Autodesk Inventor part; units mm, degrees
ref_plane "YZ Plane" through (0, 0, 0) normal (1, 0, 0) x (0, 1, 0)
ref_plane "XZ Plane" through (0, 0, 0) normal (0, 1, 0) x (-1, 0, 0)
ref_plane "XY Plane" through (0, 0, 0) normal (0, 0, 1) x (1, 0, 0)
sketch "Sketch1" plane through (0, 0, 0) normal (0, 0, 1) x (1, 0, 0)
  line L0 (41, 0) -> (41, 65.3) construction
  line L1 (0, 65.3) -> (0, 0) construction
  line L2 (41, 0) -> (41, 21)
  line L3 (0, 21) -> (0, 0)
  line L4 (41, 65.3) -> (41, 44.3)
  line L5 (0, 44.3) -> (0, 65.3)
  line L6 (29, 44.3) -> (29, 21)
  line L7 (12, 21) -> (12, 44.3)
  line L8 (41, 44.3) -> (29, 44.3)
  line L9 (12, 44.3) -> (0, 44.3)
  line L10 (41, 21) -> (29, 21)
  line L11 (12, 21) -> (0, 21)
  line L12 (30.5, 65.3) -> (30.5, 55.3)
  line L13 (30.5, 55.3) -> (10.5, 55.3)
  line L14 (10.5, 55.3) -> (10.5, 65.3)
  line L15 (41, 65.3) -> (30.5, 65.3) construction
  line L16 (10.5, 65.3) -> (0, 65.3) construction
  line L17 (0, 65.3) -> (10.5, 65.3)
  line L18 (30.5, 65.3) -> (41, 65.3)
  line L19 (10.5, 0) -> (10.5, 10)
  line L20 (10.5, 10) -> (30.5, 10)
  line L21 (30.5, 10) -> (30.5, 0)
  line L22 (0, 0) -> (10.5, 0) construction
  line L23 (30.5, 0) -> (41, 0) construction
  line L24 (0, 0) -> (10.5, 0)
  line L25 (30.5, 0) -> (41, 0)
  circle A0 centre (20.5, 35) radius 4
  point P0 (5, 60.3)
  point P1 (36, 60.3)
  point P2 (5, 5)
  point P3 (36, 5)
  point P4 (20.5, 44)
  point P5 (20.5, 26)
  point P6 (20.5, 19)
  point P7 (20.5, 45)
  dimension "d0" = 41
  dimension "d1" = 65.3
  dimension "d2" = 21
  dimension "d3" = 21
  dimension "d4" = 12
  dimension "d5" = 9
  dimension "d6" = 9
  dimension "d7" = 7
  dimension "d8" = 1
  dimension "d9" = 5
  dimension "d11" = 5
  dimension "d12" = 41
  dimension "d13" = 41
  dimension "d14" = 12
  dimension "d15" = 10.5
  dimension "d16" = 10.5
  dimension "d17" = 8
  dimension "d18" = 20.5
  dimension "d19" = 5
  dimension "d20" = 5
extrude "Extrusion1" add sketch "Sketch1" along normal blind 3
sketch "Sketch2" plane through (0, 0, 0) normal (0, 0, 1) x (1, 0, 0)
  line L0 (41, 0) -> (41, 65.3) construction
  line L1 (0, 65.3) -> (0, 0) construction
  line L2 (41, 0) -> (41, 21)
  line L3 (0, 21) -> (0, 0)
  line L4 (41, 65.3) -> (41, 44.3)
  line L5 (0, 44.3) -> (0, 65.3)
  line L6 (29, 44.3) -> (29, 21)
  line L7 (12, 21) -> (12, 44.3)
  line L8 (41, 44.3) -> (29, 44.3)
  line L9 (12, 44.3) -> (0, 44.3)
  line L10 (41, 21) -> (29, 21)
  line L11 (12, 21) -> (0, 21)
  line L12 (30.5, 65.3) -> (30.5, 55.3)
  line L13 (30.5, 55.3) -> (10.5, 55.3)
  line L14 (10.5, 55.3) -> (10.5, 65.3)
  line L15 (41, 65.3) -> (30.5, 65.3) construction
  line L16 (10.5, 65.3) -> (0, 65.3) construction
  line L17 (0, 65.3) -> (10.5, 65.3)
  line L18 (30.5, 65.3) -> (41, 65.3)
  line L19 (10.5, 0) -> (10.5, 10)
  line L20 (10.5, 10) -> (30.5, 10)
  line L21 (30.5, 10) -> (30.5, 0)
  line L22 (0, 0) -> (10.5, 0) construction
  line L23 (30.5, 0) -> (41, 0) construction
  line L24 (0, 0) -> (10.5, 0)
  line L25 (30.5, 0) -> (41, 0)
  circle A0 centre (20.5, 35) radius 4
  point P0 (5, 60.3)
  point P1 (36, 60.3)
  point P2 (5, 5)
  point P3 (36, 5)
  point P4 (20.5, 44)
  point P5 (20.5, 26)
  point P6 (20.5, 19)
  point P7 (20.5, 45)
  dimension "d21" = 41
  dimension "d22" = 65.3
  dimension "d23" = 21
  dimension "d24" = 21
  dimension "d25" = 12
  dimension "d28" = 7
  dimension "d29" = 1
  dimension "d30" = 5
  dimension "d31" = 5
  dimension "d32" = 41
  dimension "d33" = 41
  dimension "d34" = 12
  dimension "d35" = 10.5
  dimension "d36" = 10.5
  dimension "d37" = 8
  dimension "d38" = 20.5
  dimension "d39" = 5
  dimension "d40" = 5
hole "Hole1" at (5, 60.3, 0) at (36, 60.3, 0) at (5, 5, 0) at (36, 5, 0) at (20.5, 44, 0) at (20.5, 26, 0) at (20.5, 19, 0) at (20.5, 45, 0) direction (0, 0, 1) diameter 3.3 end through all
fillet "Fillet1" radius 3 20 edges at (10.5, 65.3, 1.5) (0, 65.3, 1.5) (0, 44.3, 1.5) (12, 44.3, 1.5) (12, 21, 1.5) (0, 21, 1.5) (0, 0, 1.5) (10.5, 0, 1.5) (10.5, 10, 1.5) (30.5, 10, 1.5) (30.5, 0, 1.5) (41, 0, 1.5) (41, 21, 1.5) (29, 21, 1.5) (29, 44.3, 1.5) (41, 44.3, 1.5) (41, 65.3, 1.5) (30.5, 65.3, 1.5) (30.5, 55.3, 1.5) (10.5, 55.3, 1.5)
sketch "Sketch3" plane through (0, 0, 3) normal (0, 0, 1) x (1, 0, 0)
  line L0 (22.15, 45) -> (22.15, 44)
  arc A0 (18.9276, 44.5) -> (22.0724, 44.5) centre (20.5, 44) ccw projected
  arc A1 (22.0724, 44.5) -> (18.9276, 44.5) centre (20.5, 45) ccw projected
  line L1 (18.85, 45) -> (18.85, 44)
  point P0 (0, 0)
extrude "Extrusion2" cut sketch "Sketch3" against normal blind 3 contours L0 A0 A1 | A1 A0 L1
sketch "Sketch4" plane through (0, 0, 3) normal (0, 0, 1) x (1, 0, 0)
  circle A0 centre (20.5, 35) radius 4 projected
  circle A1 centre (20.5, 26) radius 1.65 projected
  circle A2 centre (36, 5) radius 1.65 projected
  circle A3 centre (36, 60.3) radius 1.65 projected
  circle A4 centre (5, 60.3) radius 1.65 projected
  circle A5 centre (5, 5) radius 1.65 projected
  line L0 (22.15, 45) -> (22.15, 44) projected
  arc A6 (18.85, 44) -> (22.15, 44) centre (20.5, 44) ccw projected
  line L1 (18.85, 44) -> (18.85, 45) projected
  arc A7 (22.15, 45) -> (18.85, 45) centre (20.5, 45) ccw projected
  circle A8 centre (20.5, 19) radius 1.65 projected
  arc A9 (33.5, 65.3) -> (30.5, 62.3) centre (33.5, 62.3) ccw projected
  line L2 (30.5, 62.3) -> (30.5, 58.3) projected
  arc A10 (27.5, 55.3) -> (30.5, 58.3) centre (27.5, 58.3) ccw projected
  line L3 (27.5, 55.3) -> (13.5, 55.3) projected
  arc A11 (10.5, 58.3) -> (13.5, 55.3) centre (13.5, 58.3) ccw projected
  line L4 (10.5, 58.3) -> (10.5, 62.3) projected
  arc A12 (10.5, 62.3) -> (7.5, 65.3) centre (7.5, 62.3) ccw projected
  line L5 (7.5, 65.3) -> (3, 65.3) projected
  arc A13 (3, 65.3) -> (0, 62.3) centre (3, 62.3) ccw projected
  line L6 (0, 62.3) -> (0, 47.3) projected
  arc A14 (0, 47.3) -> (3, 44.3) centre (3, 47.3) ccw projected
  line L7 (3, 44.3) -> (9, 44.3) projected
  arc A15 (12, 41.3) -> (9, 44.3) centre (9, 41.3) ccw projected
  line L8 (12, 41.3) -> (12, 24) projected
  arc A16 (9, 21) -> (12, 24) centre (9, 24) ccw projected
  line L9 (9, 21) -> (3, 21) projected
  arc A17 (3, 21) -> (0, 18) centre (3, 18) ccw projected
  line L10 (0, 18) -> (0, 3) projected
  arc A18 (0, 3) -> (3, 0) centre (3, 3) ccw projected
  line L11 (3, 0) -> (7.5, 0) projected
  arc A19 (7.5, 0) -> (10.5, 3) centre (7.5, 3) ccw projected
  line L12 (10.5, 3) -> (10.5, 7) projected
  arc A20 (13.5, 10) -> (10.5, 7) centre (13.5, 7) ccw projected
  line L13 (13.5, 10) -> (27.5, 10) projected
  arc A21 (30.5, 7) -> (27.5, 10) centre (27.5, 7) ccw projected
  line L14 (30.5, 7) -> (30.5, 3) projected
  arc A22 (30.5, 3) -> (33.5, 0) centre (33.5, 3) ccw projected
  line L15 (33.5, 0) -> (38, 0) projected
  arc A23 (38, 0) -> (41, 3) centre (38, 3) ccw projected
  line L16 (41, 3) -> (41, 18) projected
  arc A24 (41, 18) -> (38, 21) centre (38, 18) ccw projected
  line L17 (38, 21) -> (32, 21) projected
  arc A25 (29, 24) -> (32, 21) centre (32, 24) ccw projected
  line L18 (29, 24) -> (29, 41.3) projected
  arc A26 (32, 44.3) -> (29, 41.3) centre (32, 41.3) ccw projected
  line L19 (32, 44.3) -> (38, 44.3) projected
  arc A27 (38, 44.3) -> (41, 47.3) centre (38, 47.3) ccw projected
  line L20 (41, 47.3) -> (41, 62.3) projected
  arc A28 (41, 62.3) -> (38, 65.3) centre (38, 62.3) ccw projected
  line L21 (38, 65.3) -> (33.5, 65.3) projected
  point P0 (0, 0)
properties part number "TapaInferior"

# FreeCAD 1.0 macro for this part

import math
import FreeCAD as App
import Part
import Sketcher
from FreeCAD import Vector


def edges_at(feature, points):
    """Names of the edges that pass closest to the given points."""
    edges = feature.Shape.Edges
    near = lambda p: min(range(len(edges)), key=lambda i: edges[i].distToShape(Part.Vertex(*p))[0])
    return sorted({f"Edge{near(p) + 1}" for p in points})


def add_polygon(sketch, points):
    """Adds a closed chain of lines whose ends are joined by coincident constraints."""
    first, n = sketch.GeometryCount, len(points)
    for a, b in zip(points, points[1:] + points[:1]):
        sketch.addGeometry(Part.LineSegment(App.Vector(*a, 0), App.Vector(*b, 0)), False)
    for i in range(n):
        sketch.addConstraint(Sketcher.Constraint("Coincident", first + i, 2, first + (i + 1) % n, 1))

doc = App.newDocument("Part")
params = doc.addObject("Spreadsheet::Sheet", "Params")
for row, (alias, value) in enumerate([
    ("sketch1_diameter", "8 mm"),
    ("sketch1_width", "12 mm"),
    ("sketch1_height", "21 mm"),
    ("sketch1_width2", "10.5 mm"),
    ("sketch1_height2", "10 mm"),
    ("pad1_length", "3 mm"),
    ("sketch2_diameter", "3.3 mm"),
    ("hole_diameter", "3.3 mm"),
    ("fillet_radius", "3 mm"),
    ("sketch3_height", "1 mm"),
    ("sketch3_radius", "1.65 mm"),
    ("pocket1_length", "3 mm"),
], start=1):
    params.set(f"A{row}", alias)
    params.set(f"B{row}", "=" + value)
    params.setAlias(f"B{row}", alias)

body = doc.addObject("PartDesign::Body", "Body")

sketch1 = body.newObject("Sketcher::SketchObject", "Sketch")
sketch1.AttachmentSupport = (doc.getObject("XY_Plane"), [""])
sketch1.MapMode = "FlatFace"
add_polygon(sketch1, [(30.5, 0), (41, 0), (41, 21), (29, 21), (29, 44.3), (41, 44.3), (41, 65.3), (30.5, 65.3), (30.5, 55.3), (10.5, 55.3), (10.5, 65.3), (0, 65.3), (0, 44.3), (12, 44.3), (12, 21), (0, 21), (0, 0), (10.5, 0), (10.5, 10), (30.5, 10)])
sketch1.addGeometry(Part.Circle(Vector(20.5, 35, 0), Vector(0, 0, 1), 4), False)
sketch1.addConstraint(Sketcher.Constraint("Horizontal", 0))
sketch1.addConstraint(Sketcher.Constraint("Vertical", 1))
sketch1.addConstraint(Sketcher.Constraint("Horizontal", 2))
sketch1.addConstraint(Sketcher.Constraint("Vertical", 3))
sketch1.addConstraint(Sketcher.Constraint("Horizontal", 4))
sketch1.addConstraint(Sketcher.Constraint("Vertical", 5))
sketch1.addConstraint(Sketcher.Constraint("Horizontal", 6))
sketch1.addConstraint(Sketcher.Constraint("Vertical", 7))
sketch1.addConstraint(Sketcher.Constraint("Horizontal", 8))
sketch1.addConstraint(Sketcher.Constraint("Vertical", 9))
sketch1.addConstraint(Sketcher.Constraint("Horizontal", 10))
sketch1.addConstraint(Sketcher.Constraint("Vertical", 11))
sketch1.addConstraint(Sketcher.Constraint("Horizontal", 12))
sketch1.addConstraint(Sketcher.Constraint("Vertical", 13))
sketch1.addConstraint(Sketcher.Constraint("Horizontal", 14))
sketch1.addConstraint(Sketcher.Constraint("Vertical", 15))
sketch1.addConstraint(Sketcher.Constraint("Horizontal", 16))
sketch1.addConstraint(Sketcher.Constraint("Vertical", 17))
sketch1.addConstraint(Sketcher.Constraint("Horizontal", 18))
sketch1.addConstraint(Sketcher.Constraint("Vertical", 19))
sketch1.addConstraint(Sketcher.Constraint("Coincident", 15, 2, -1, 1))
sketch1.addConstraint(Sketcher.Constraint("PointOnObject", 0, 2, -1))
sketch1.addConstraint(Sketcher.Constraint("PointOnObject", 10, 2, -2))
sketch1.addConstraint(Sketcher.Constraint("Horizontal", 6, 2, 9, 2))
sketch1.addConstraint(Sketcher.Constraint("Horizontal", 4, 2, 11, 2))
sketch1.addConstraint(Sketcher.Constraint("Horizontal", 2, 2, 13, 2))
sketch1.addConstraint(Sketcher.Constraint("Vertical", 1, 2, 4, 2))
sketch1.addConstraint(Sketcher.Constraint("Vertical", 9, 2, 16, 2))
sketch1.addConstraint(Sketcher.Constraint("Vertical", 7, 2, 18, 2))
sketch1.addConstraint(Sketcher.Constraint("Equal", 6, 10))
sketch1.addConstraint(Sketcher.Constraint("Equal", 4, 12))
sketch1.addConstraint(Sketcher.Constraint("Equal", 1, 5))
sketch1.addConstraint(Sketcher.Constraint("Equal", 9, 17))
sketch1.addConstraint(Sketcher.Constraint("Diameter", 20, 8.0))
sketch1.addConstraint(Sketcher.Constraint("DistanceX", 2, 2, 2, 1, 12.0))
sketch1.addConstraint(Sketcher.Constraint("DistanceY", 1, 1, 1, 2, 21.0))
sketch1.addConstraint(Sketcher.Constraint("DistanceX", 0, 1, 0, 2, 10.5))
sketch1.addConstraint(Sketcher.Constraint("DistanceX", -1, 1, 0, 2, 41.0))
sketch1.addConstraint(Sketcher.Constraint("DistanceX", -1, 1, 20, 3, 20.5))
sketch1.addConstraint(Sketcher.Constraint("DistanceY", -1, 1, 5, 2, 65.3))
sketch1.addConstraint(Sketcher.Constraint("DistanceY", 7, 2, 7, 1, 10.0))
sketch1.addConstraint(Sketcher.Constraint("DistanceY", -1, 1, 20, 3, 35.0))
sketch1.setExpression("Constraints[53]", "Params.sketch1_diameter")
sketch1.setExpression("Constraints[54]", "Params.sketch1_width")
sketch1.setExpression("Constraints[55]", "Params.sketch1_height")
sketch1.setExpression("Constraints[56]", "Params.sketch1_width2")
sketch1.setExpression("Constraints[60]", "Params.sketch1_height2")
pad1 = body.newObject("PartDesign::Pad", "Pad")
pad1.Profile = sketch1
pad1.setExpression("Length", "Params.pad1_length")

sketch2 = body.newObject("Sketcher::SketchObject", "Sketch001")
sketch2.AttachmentSupport = (doc.getObject("XY_Plane"), [""])
sketch2.MapMode = "FlatFace"
sketch2.addGeometry(Part.Circle(Vector(5, 60.3, 0), Vector(0, 0, 1), 1.6), False)
sketch2.addGeometry(Part.Circle(Vector(36, 60.3, 0), Vector(0, 0, 1), 1.6), False)
sketch2.addGeometry(Part.Circle(Vector(5, 5, 0), Vector(0, 0, 1), 1.6), False)
sketch2.addGeometry(Part.Circle(Vector(36, 5, 0), Vector(0, 0, 1), 1.6), False)
sketch2.addGeometry(Part.Circle(Vector(20.5, 44, 0), Vector(0, 0, 1), 1.6), False)
sketch2.addGeometry(Part.Circle(Vector(20.5, 26, 0), Vector(0, 0, 1), 1.6), False)
sketch2.addGeometry(Part.Circle(Vector(20.5, 19, 0), Vector(0, 0, 1), 1.6), False)
sketch2.addGeometry(Part.Circle(Vector(20.5, 45, 0), Vector(0, 0, 1), 1.6), False)
sketch2.addConstraint(Sketcher.Constraint("Equal", 0, 1))
sketch2.addConstraint(Sketcher.Constraint("Equal", 1, 2))
sketch2.addConstraint(Sketcher.Constraint("Equal", 2, 3))
sketch2.addConstraint(Sketcher.Constraint("Equal", 3, 4))
sketch2.addConstraint(Sketcher.Constraint("Equal", 4, 5))
sketch2.addConstraint(Sketcher.Constraint("Equal", 5, 6))
sketch2.addConstraint(Sketcher.Constraint("Equal", 6, 7))
sketch2.addConstraint(Sketcher.Constraint("Horizontal", 0, 3, 1, 3))
sketch2.addConstraint(Sketcher.Constraint("Horizontal", 2, 3, 3, 3))
sketch2.addConstraint(Sketcher.Constraint("Vertical", 0, 3, 2, 3))
sketch2.addConstraint(Sketcher.Constraint("Vertical", 1, 3, 3, 3))
sketch2.addConstraint(Sketcher.Constraint("Vertical", 4, 3, 5, 3))
sketch2.addConstraint(Sketcher.Constraint("Vertical", 5, 3, 6, 3))
sketch2.addConstraint(Sketcher.Constraint("Vertical", 6, 3, 7, 3))
sketch2.addConstraint(Sketcher.Constraint("Diameter", 0, 3.3))
sketch2.addConstraint(Sketcher.Constraint("DistanceX", -1, 1, 0, 3, 5.0))
sketch2.addConstraint(Sketcher.Constraint("DistanceX", -1, 1, 1, 3, 36.0))
sketch2.addConstraint(Sketcher.Constraint("DistanceY", -1, 1, 2, 3, 5.0))
sketch2.addConstraint(Sketcher.Constraint("DistanceY", -1, 1, 4, 3, 44.0))
sketch2.addConstraint(Sketcher.Constraint("DistanceY", -1, 1, 5, 3, 26.0))
sketch2.addConstraint(Sketcher.Constraint("DistanceY", -1, 1, 6, 3, 19.0))
sketch2.addConstraint(Sketcher.Constraint("DistanceY", -1, 1, 7, 3, 45.0))
sketch2.addConstraint(Sketcher.Constraint("DistanceY", -1, 1, 0, 3, 60.3))
sketch2.addConstraint(Sketcher.Constraint("DistanceX", -1, 1, 4, 3, 20.5))
sketch2.setExpression("Constraints[14]", "Params.sketch2_diameter")
doc.recompute()
hole = body.newObject("PartDesign::Hole", "Hole")
hole.Profile = sketch2
hole.ThreadType = "None"
hole.setExpression("Diameter", "Params.hole_diameter")
hole.DepthType = "ThroughAll"
hole.Reversed = True
doc.recompute()

fillet = body.newObject("PartDesign::Fillet", "Fillet")
fillet.Base = (hole, edges_at(hole, [
    (10.5, 65.3, 1.5),
    (0, 65.3, 1.5),
    (0, 44.3, 1.5),
    (12, 44.3, 1.5),
    (12, 21, 1.5),
    (0, 21, 1.5),
    (0, 0, 1.5),
    (10.5, 0, 1.5),
    (10.5, 10, 1.5),
    (30.5, 10, 1.5),
    (30.5, 0, 1.5),
    (41, 0, 1.5),
    (41, 21, 1.5),
    (29, 21, 1.5),
    (29, 44.3, 1.5),
    (41, 44.3, 1.5),
    (41, 65.3, 1.5),
    (30.5, 65.3, 1.5),
    (30.5, 55.3, 1.5),
    (10.5, 55.3, 1.5),
]))
fillet.setExpression("Radius", "Params.fillet_radius")

sketch3 = body.newObject("Sketcher::SketchObject", "Sketch002")
sketch3.AttachmentSupport = (doc.getObject("XY_Plane"), [""])
sketch3.MapMode = "FlatFace"
sketch3.AttachmentOffset = App.Placement(Vector(0, 0, 3), App.Rotation())
sketch3.addGeometry(Part.LineSegment(Vector(22.1, 44, 0), Vector(22.1, 45, 0)), False)
sketch3.addGeometry(Part.ArcOfCircle(Part.Circle(Vector(20.5, 45, 0), Vector(0, 0, 1), 1.6), math.radians(-17.64), math.radians(0)), False)
sketch3.addGeometry(Part.ArcOfCircle(Part.Circle(Vector(20.5, 44, 0), Vector(0, 0, 1), 1.6), math.radians(0), math.radians(17.64)), False)
sketch3.addGeometry(Part.ArcOfCircle(Part.Circle(Vector(20.5, 45, 0), Vector(0, 0, 1), 1.6), math.radians(180), math.radians(197.64)), False)
sketch3.addGeometry(Part.LineSegment(Vector(18.9, 45, 0), Vector(18.9, 44, 0)), False)
sketch3.addGeometry(Part.ArcOfCircle(Part.Circle(Vector(20.5, 44, 0), Vector(0, 0, 1), 1.6), math.radians(162.36), math.radians(180)), False)
sketch3.addConstraint(Sketcher.Constraint("Tangent", 0, 2, 1, 2))
sketch3.addConstraint(Sketcher.Constraint("Coincident", 1, 1, 2, 2))
sketch3.addConstraint(Sketcher.Constraint("Tangent", 2, 1, 0, 1))
sketch3.addConstraint(Sketcher.Constraint("Tangent", 3, 1, 4, 1))
sketch3.addConstraint(Sketcher.Constraint("Tangent", 4, 2, 5, 2))
sketch3.addConstraint(Sketcher.Constraint("Coincident", 5, 1, 3, 2))
sketch3.addConstraint(Sketcher.Constraint("Vertical", 0))
sketch3.addConstraint(Sketcher.Constraint("Vertical", 4))
sketch3.addConstraint(Sketcher.Constraint("Coincident", 3, 3, 1, 3))
sketch3.addConstraint(Sketcher.Constraint("Coincident", 5, 3, 2, 3))
sketch3.addConstraint(Sketcher.Constraint("Equal", 1, 2))
sketch3.addConstraint(Sketcher.Constraint("Equal", 2, 3))
sketch3.addConstraint(Sketcher.Constraint("DistanceY", 0, 1, 0, 2, 1.0))
sketch3.addConstraint(Sketcher.Constraint("Radius", 1, 1.65))
sketch3.addConstraint(Sketcher.Constraint("DistanceY", -1, 1, 1, 3, 45.0))
sketch3.addConstraint(Sketcher.Constraint("DistanceX", -1, 1, 1, 3, 20.5))
sketch3.setExpression("Constraints[12]", "Params.sketch3_height")
sketch3.setExpression("Constraints[13]", "Params.sketch3_radius")
pocket1 = body.newObject("PartDesign::Pocket", "Pocket")
pocket1.Profile = sketch3
pocket1.setExpression("Length", "Params.pocket1_length")

doc.recompute()
